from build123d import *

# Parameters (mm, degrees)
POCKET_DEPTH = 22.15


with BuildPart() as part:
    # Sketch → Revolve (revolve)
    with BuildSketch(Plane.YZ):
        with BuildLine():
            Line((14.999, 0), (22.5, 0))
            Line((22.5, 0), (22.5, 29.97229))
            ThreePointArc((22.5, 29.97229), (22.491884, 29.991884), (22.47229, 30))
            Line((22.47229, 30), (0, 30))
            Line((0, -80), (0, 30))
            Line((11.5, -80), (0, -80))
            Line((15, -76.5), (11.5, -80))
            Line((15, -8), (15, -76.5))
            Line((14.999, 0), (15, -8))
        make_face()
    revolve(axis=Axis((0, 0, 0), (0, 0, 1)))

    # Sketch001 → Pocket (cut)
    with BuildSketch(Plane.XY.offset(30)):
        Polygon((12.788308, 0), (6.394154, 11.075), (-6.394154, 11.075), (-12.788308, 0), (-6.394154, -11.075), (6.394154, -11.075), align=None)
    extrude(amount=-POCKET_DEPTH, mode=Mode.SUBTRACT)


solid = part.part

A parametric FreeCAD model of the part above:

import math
import FreeCAD as App
import Part
import Sketcher

V = App.Vector
Q = App.Units.Quantity


def add_polygon(sketch, points):
    """Adds a closed chain of lines whose ends are joined by coincident constraints."""
    first, n = sketch.GeometryCount, len(points)
    for a, b in zip(points, points[1:] + points[:1]):
        sketch.addGeometry(Part.LineSegment(App.Vector(*a, 0), App.Vector(*b, 0)), False)
    for i in range(n):
        sketch.addConstraint(Sketcher.Constraint("Coincident", first + i, 2, first + (i + 1) % n, 1))

doc = App.newDocument("Part")
params = doc.addObject("Spreadsheet::Sheet", "Params")
for row, (alias, value) in enumerate([
    ("sketch1_height", "110 mm"),
    ("sketch1_length", "8 mm"),
    ("sketch1_width", "11.5 mm"),
    ("sketch1_height2", "68.5 mm"),
    ("revolution_angle", "360 deg"),
    ("pocket1_length", "22.15 mm"),
], start=1):
    params.set(f"A{row}", alias)
    params.set(f"B{row}", "=" + value)
    params.setAlias(f"B{row}", alias)

body = doc.addObject("PartDesign::Body", "Body")

sketch1 = doc.addObject("Sketcher::SketchObject", "Sketch")
body.addObject(sketch1)
sketch1.AttachmentSupport = (doc.YZ_Plane, [""])
sketch1.MapMode = "FlatFace"
sketch1.addGeometry(Part.LineSegment(V(14.999, 0, 0), V(22.5, 0, 0)), False)
sketch1.addGeometry(Part.LineSegment(V(22.5, 0, 0), V(22.5, 29.972, 0)), False)
sketch1.addGeometry(Part.ArcOfCircle(Part.Circle(V(22.472, 29.972, 0), V(0, 0, 1), 0.028), math.radians(0), math.radians(90)), False)
sketch1.addGeometry(Part.LineSegment(V(22.472, 30, 0), V(0, 30, 0)), False)
sketch1.addGeometry(Part.LineSegment(V(0, 30, 0), V(0, -80, 0)), False)
sketch1.addGeometry(Part.LineSegment(V(0, -80, 0), V(11.5, -80, 0)), False)
sketch1.addGeometry(Part.LineSegment(V(11.5, -80, 0), V(15, -76.5, 0)), False)
sketch1.addGeometry(Part.LineSegment(V(15, -76.5, 0), V(15, -8, 0)), False)
sketch1.addGeometry(Part.LineSegment(V(15, -8, 0), V(14.999, 0, 0)), False)
sketch1.addConstraint(Sketcher.Constraint("Coincident", 0, 2, 1, 1))
sketch1.addConstraint(Sketcher.Constraint("Coincident", 1, 2, 2, 1))
sketch1.addConstraint(Sketcher.Constraint("Coincident", 2, 2, 3, 1))
sketch1.addConstraint(Sketcher.Constraint("Coincident", 3, 2, 4, 1))
sketch1.addConstraint(Sketcher.Constraint("Coincident", 4, 2, 5, 1))
sketch1.addConstraint(Sketcher.Constraint("Coincident", 5, 2, 6, 1))
sketch1.addConstraint(Sketcher.Constraint("Coincident", 6, 2, 7, 1))
sketch1.addConstraint(Sketcher.Constraint("Coincident", 7, 2, 8, 1))
sketch1.addConstraint(Sketcher.Constraint("Coincident", 8, 2, 0, 1))
sketch1.addConstraint(Sketcher.Constraint("Horizontal", 0))
sketch1.addConstraint(Sketcher.Constraint("Vertical", 1))
sketch1.addConstraint(Sketcher.Constraint("Horizontal", 3))
sketch1.addConstraint(Sketcher.Constraint("Vertical", 4))
sketch1.addConstraint(Sketcher.Constraint("Horizontal", 5))
sketch1.addConstraint(Sketcher.Constraint("Vertical", 7))
sketch1.addConstraint(Sketcher.Constraint("PointOnObject", 0, 2, -1))
sketch1.addConstraint(Sketcher.Constraint("PointOnObject", 3, 2, -2))
sketch1.addConstraint(Sketcher.Constraint("Horizontal", 2, 3, 1, 2))
sketch1.addConstraint(Sketcher.Constraint("DistanceY", 4, 2, 4, 1, 110.0))
sketch1.addConstraint(Sketcher.Constraint("Angle", 6, Q("45 deg")))
sketch1.addConstraint(Sketcher.Constraint("Distance", 8, 8.0))
sketch1.addConstraint(Sketcher.Constraint("DistanceX", 5, 1, 5, 2, 11.5))
sketch1.addConstraint(Sketcher.Constraint("DistanceY", 7, 1, 7, 2, 68.5))
sketch1.addConstraint(Sketcher.Constraint("DistanceY", -1, 1, 2, 2, 30.0))
sketch1.addConstraint(Sketcher.Constraint("DistanceX", 5, 2, 0, 2, 11.0))
sketch1.addConstraint(Sketcher.Constraint("DistanceX", 0, 1, 0, 2, 7.501))
sketch1.addConstraint(Sketcher.Constraint("Radius", 2, 0.02771))
sketch1.addConstraint(Sketcher.Constraint("DistanceX", 3, 2, 3, 1, 22.47229))
sketch1.setExpression("Constraints[18]", "Params.sketch1_height")
sketch1.setExpression("Constraints[20]", "Params.sketch1_length")
sketch1.setExpression("Constraints[21]", "Params.sketch1_width")
sketch1.setExpression("Constraints[22]", "Params.sketch1_height2")
revolution = doc.addObject("PartDesign::Revolution", "Revolution")
body.addObject(revolution)
revolution.Profile = sketch1
revolution.ReferenceAxis = (sketch1, ["V_Axis"])
revolution.setExpression("Angle", "Params.revolution_angle")

sketch2 = doc.addObject("Sketcher::SketchObject", "Sketch001")
body.addObject(sketch2)
sketch2.AttachmentSupport = (doc.XY_Plane, [""])
sketch2.MapMode = "FlatFace"
sketch2.AttachmentOffset = App.Placement(V(0, 0, 30), App.Rotation())
add_polygon(sketch2, [(13, 0), (6, 11), (-6, 11), (-13, 0), (-6, -11), (6, -11)])
sketch2.addConstraint(Sketcher.Constraint("Horizontal", 1))
sketch2.addConstraint(Sketcher.Constraint("Horizontal", 4))
sketch2.addConstraint(Sketcher.Constraint("Symmetric", 0, 2, 3, 2, -1, 1))
sketch2.addConstraint(Sketcher.Constraint("Symmetric", 2, 2, 5, 2, -1, 1))
sketch2.addConstraint(Sketcher.Constraint("PointOnObject", 2, 2, -1))
sketch2.addConstraint(Sketcher.Constraint("Parallel", 2, 5))
sketch2.addConstraint(Sketcher.Constraint("Vertical", 1, 2, 3, 2))
sketch2.addConstraint(Sketcher.Constraint("Angle", 0, Q("119.999999 deg")))
sketch2.addConstraint(Sketcher.Constraint("DistanceY", 3, 2, 1, 2, 22.15))
sketch2.addConstraint(Sketcher.Constraint("DistanceX", 1, 2, 1, 1, 12.788308))
pocket1 = doc.addObject("PartDesign::Pocket", "Pocket")
body.addObject(pocket1)
pocket1.Profile = sketch2
pocket1.setExpression("Length", "Params.pocket1_length")

doc.recompute()
